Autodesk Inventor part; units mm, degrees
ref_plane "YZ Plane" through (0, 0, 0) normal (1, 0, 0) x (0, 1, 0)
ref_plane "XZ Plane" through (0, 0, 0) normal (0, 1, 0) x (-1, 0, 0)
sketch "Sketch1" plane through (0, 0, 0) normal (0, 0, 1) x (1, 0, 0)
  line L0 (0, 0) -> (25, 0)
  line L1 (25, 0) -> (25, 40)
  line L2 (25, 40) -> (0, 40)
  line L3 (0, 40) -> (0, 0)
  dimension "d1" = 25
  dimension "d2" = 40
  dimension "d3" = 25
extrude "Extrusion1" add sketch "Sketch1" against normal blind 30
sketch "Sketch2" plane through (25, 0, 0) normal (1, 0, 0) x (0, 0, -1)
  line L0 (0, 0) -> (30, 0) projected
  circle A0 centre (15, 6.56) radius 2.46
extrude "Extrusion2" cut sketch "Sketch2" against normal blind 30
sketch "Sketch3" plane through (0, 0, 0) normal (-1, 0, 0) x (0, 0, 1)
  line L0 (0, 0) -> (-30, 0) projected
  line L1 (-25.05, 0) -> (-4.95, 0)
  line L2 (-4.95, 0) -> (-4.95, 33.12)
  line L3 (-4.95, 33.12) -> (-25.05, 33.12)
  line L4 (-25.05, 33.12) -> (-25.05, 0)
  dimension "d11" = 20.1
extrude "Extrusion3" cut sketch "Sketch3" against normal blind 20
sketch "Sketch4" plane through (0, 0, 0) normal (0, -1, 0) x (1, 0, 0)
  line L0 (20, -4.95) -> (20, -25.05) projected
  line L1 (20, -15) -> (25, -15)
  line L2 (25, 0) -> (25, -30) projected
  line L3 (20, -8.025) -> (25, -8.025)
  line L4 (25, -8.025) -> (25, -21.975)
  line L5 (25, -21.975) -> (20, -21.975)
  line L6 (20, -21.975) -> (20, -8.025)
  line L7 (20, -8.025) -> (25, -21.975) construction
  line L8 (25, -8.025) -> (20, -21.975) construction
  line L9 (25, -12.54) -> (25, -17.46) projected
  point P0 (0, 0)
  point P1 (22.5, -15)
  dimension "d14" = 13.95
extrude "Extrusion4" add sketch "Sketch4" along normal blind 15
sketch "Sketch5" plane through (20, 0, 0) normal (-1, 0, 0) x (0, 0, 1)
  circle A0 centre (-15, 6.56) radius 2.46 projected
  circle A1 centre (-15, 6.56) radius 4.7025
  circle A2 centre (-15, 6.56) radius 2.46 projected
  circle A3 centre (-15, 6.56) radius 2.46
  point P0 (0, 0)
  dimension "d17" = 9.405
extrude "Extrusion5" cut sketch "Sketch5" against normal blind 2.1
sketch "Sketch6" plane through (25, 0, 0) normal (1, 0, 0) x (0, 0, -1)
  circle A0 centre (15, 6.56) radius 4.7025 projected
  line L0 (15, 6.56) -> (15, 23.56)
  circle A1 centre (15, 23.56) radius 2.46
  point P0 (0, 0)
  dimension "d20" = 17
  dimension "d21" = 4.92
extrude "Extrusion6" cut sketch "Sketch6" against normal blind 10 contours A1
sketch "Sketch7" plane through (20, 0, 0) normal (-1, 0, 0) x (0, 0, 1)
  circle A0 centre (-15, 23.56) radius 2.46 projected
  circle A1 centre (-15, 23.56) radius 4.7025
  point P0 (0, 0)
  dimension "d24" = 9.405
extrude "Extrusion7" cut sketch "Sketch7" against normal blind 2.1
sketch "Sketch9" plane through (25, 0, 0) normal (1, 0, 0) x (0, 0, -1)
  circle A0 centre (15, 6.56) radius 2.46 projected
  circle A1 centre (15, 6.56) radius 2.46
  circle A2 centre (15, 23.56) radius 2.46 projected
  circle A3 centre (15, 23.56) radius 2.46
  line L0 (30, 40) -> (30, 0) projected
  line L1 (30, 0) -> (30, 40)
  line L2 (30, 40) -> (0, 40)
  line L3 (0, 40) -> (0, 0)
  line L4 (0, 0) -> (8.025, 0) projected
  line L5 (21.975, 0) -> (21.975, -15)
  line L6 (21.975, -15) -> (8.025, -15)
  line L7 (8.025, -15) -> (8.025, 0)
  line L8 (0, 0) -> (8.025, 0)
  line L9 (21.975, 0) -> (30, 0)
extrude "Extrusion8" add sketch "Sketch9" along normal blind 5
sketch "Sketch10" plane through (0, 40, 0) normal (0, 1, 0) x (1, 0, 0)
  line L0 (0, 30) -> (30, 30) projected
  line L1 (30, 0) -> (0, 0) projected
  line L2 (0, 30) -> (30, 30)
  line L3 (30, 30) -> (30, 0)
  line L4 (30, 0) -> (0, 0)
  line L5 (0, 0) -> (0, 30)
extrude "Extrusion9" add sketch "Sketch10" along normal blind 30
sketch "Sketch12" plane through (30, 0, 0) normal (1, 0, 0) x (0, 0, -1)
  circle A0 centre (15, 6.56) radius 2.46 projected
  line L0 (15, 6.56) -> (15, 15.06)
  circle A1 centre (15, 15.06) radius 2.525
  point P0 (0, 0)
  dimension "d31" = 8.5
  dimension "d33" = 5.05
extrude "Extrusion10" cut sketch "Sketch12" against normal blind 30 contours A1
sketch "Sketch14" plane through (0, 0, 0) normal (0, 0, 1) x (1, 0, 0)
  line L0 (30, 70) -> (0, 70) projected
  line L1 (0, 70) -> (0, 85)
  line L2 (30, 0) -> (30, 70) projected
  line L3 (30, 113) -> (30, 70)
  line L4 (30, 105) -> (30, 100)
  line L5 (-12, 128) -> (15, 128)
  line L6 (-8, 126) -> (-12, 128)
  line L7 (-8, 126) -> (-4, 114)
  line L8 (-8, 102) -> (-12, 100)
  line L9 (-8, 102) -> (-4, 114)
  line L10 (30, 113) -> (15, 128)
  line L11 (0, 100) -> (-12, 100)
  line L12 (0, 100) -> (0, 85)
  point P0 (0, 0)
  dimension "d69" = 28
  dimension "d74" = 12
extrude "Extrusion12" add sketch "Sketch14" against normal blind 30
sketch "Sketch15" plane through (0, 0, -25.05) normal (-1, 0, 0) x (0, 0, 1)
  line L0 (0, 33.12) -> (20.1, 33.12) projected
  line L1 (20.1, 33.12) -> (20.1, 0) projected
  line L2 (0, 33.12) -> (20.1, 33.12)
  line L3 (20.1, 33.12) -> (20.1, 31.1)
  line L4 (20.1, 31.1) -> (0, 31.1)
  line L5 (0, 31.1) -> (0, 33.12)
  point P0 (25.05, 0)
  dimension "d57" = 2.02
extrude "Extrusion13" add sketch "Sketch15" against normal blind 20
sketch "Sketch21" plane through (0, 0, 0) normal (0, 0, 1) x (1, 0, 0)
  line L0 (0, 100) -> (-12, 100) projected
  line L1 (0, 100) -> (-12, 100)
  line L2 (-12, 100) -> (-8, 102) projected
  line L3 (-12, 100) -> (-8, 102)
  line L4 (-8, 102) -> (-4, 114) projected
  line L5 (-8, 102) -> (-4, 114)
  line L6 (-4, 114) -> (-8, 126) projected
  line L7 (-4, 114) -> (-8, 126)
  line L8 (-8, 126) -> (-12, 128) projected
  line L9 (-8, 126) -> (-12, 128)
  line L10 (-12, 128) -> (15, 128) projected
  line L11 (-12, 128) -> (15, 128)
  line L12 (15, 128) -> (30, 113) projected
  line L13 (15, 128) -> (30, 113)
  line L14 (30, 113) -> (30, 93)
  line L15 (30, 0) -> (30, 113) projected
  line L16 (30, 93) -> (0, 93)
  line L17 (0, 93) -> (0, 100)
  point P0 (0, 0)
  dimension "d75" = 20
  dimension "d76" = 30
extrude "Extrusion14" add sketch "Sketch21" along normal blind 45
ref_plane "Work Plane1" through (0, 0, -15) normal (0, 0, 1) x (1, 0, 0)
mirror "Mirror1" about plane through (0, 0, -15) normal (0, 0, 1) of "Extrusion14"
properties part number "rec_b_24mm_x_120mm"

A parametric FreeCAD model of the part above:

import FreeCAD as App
import Part
import Sketcher
from FreeCAD import Vector
Q = App.Units.Quantity


def add_polygon(sketch, points):
    """Adds a closed chain of lines whose ends are joined by coincident constraints."""
    first, n = sketch.GeometryCount, len(points)
    for a, b in zip(points, points[1:] + points[:1]):
        sketch.addGeometry(Part.LineSegment(App.Vector(*a, 0), App.Vector(*b, 0)), False)
    for i in range(n):
        sketch.addConstraint(Sketcher.Constraint("Coincident", first + i, 2, first + (i + 1) % n, 1))

doc = App.newDocument("Part")
body = doc.addObject("PartDesign::Body", "Body")

# Sketch on XY plane
sketch1 = doc.addObject("Sketcher::SketchObject", "Sketch")
body.addObject(sketch1)
sketch1.AttachmentSupport = (doc.XY_Plane, [""])
sketch1.MapMode = "FlatFace"
add_polygon(sketch1, [(0, 40), (0, 0), (25, 0), (25, 40)])  # lines 0-3
sketch1.addConstraint([
    Sketcher.Constraint("Vertical", 0),
    Sketcher.Constraint("Horizontal", 1),
    Sketcher.Constraint("Vertical", 2),
    Sketcher.Constraint("Horizontal", 3),
    Sketcher.Constraint("Coincident", 0, 2, -1, 1),
    Sketcher.Constraint("DistanceX", 1, 1, 1, 2, 25.0),
    Sketcher.Constraint("DistanceY", 0, 2, 0, 1, 40.0),
])
pad1 = doc.addObject("PartDesign::Pad", "Pad")
body.addObject(pad1)
pad1.Profile = sketch1
pad1.Length = 30
pad1.Reversed = True

# Sketch on YZ plane
sketch2 = doc.addObject("Sketcher::SketchObject", "Sketch001")
body.addObject(sketch2)
sketch2.AttachmentSupport = (doc.YZ_Plane, [""])
sketch2.MapMode = "FlatFace"
sketch2.AttachmentOffset = App.Placement(Vector(0, 0, 25), App.Rotation())
sketch2.addGeometry(Part.Circle(Vector(6.6, -15, 0), Vector(0, 0, 1), 2.5), False)
sketch2.addConstraint([
    Sketcher.Constraint("Diameter", 0, 4.92),
    Sketcher.Constraint("DistanceY", 0, 3, -1, 1, 15.0),
    Sketcher.Constraint("DistanceX", -1, 1, 0, 3, 6.56),
])
pocket1 = doc.addObject("PartDesign::Pocket", "Pocket")
body.addObject(pocket1)
pocket1.Profile = sketch2
pocket1.Length = 30

# Sketch on YZ plane
sketch3 = doc.addObject("Sketcher::SketchObject", "Sketch002")
body.addObject(sketch3)
sketch3.AttachmentSupport = (doc.YZ_Plane, [""])
sketch3.MapMode = "FlatFace"
add_polygon(sketch3, [(0, -25), (0, -5), (33, -5), (33, -25)])  # lines 0-3
sketch3.addConstraint([
    Sketcher.Constraint("Vertical", 0),
    Sketcher.Constraint("Horizontal", 1),
    Sketcher.Constraint("Vertical", 2),
    Sketcher.Constraint("Horizontal", 3),
    Sketcher.Constraint("PointOnObject", 0, 2, -2),
    Sketcher.Constraint("DistanceY", 0, 1, 0, 2, 20.1),
    Sketcher.Constraint("DistanceX", 1, 1, 1, 2, 33.12),
    Sketcher.Constraint("DistanceY", 0, 2, -1, 1, 4.95),
])
pocket2 = doc.addObject("PartDesign::Pocket", "Pocket001")
body.addObject(pocket2)
pocket2.Profile = sketch3
pocket2.Length = 20
pocket2.Reversed = True

# Sketch on XZ plane
sketch4 = doc.addObject("Sketcher::SketchObject", "Sketch003")
body.addObject(sketch4)
sketch4.AttachmentSupport = (doc.XZ_Plane, [""])
sketch4.MapMode = "FlatFace"
add_polygon(sketch4, [(25, -8), (20, -8), (20, -22), (25, -22)])  # lines 0-3
sketch4.addConstraint([
    Sketcher.Constraint("Horizontal", 0),
    Sketcher.Constraint("Vertical", 1),
    Sketcher.Constraint("Horizontal", 2),
    Sketcher.Constraint("Vertical", 3),
    Sketcher.Constraint("DistanceY", 1, 2, 1, 1, 13.95),
    Sketcher.Constraint("DistanceX", 0, 2, 0, 1, 5.0),
    Sketcher.Constraint("DistanceX", -1, 1, 0, 2, 20.0),
    Sketcher.Constraint("DistanceY", 0, 2, -1, 1, 8.025),
])
pad2 = doc.addObject("PartDesign::Pad", "Pad001")
body.addObject(pad2)
pad2.Profile = sketch4
pad2.Length = 15

# Sketch on YZ plane
sketch5 = doc.addObject("Sketcher::SketchObject", "Sketch004")
body.addObject(sketch5)
sketch5.AttachmentSupport = (doc.YZ_Plane, [""])
sketch5.MapMode = "FlatFace"
sketch5.AttachmentOffset = App.Placement(Vector(0, 0, 20), App.Rotation())
sketch5.addGeometry([
    Part.Circle(Vector(6.6, -15, 0), Vector(0, 0, 1), 4.7),
    Part.Circle(Vector(6.6, -15, 0), Vector(0, 0, 1), 2.5),
], False)
sketch5.addConstraint([
    Sketcher.Constraint("Coincident", 1, 3, 0, 3),
    Sketcher.Constraint("Diameter", 0, 9.405),
    Sketcher.Constraint("Diameter", 1, 4.92),
    Sketcher.Constraint("DistanceY", 0, 3, -1, 1, 15.0),
    Sketcher.Constraint("DistanceX", -1, 1, 0, 3, 6.56),
])
pocket3 = doc.addObject("PartDesign::Pocket", "Pocket002")
body.addObject(pocket3)
pocket3.Profile = sketch5
pocket3.Length = 2.1
pocket3.Reversed = True

# Sketch on YZ plane
sketch6 = doc.addObject("Sketcher::SketchObject", "Sketch005")
body.addObject(sketch6)
sketch6.AttachmentSupport = (doc.YZ_Plane, [""])
sketch6.MapMode = "FlatFace"
sketch6.AttachmentOffset = App.Placement(Vector(0, 0, 25), App.Rotation())
sketch6.addGeometry(Part.Circle(Vector(23.6, -15, 0), Vector(0, 0, 1), 2.5), False)
sketch6.addConstraint([
    Sketcher.Constraint("Diameter", 0, 4.92),
    Sketcher.Constraint("DistanceY", 0, 3, -1, 1, 15.0),
    Sketcher.Constraint("DistanceX", -1, 1, 0, 3, 23.56),
])
pocket4 = doc.addObject("PartDesign::Pocket", "Pocket003")
body.addObject(pocket4)
pocket4.Profile = sketch6
pocket4.Length = 10

# Sketch on YZ plane
sketch7 = doc.addObject("Sketcher::SketchObject", "Sketch006")
body.addObject(sketch7)
sketch7.AttachmentSupport = (doc.YZ_Plane, [""])
sketch7.MapMode = "FlatFace"
sketch7.AttachmentOffset = App.Placement(Vector(0, 0, 20), App.Rotation())
sketch7.addGeometry([
    Part.Circle(Vector(23.6, -15, 0), Vector(0, 0, 1), 4.7),
    Part.Circle(Vector(23.6, -15, 0), Vector(0, 0, 1), 2.5),
], False)
sketch7.addConstraint([
    Sketcher.Constraint("Coincident", 1, 3, 0, 3),
    Sketcher.Constraint("Diameter", 0, 9.405),
    Sketcher.Constraint("Diameter", 1, 4.92),
    Sketcher.Constraint("DistanceY", 0, 3, -1, 1, 15.0),
    Sketcher.Constraint("DistanceX", -1, 1, 0, 3, 23.56),
])
pocket5 = doc.addObject("PartDesign::Pocket", "Pocket004")
body.addObject(pocket5)
pocket5.Profile = sketch7
pocket5.Length = 2.1
pocket5.Reversed = True

# Sketch on YZ plane
sketch8 = doc.addObject("Sketcher::SketchObject", "Sketch007")
body.addObject(sketch8)
sketch8.AttachmentSupport = (doc.YZ_Plane, [""])
sketch8.MapMode = "FlatFace"
sketch8.AttachmentOffset = App.Placement(Vector(0, 0, 25), App.Rotation())
add_polygon(sketch8, [(0, -30), (40, -30), (40, 0), (0, 0), (0, -8), (-15, -8), (-15, -22), (0, -22)])  # lines 0-7
sketch8.addGeometry(Part.Circle(Vector(6.6, -15, 0), Vector(0, 0, 1), 2.5), False)  # 8
sketch8.addGeometry(Part.Circle(Vector(23.6, -15, 0), Vector(0, 0, 1), 2.5), False)  # 9
sketch8.addConstraint([
    Sketcher.Constraint("Horizontal", 0),
    Sketcher.Constraint("Vertical", 1),
    Sketcher.Constraint("Horizontal", 2),
    Sketcher.Constraint("Vertical", 3),
    Sketcher.Constraint("Horizontal", 4),
    Sketcher.Constraint("Vertical", 5),
    Sketcher.Constraint("Horizontal", 6),
    Sketcher.Constraint("Vertical", 7),
    Sketcher.Constraint("Coincident", 2, 2, -1, 1),
    Sketcher.Constraint("Equal", 8, 9),
    Sketcher.Constraint("PointOnObject", 6, 2, -2),
    Sketcher.Constraint("Horizontal", 8, 3, 9, 3),
    Sketcher.Constraint("Equal", 3, 7),
    Sketcher.Constraint("Diameter", 8, 4.92),
    Sketcher.Constraint("DistanceX", 0, 1, 0, 2, 40.0),
    Sketcher.Constraint("DistanceX", 4, 2, 4, 1, 15.0),
    Sketcher.Constraint("DistanceY", 1, 1, 1, 2, 30.0),
    Sketcher.Constraint("DistanceY", 8, 3, -1, 1, 15.0),
    Sketcher.Constraint("DistanceX", 8, 3, 9, 3, 17.0),
    Sketcher.Constraint("DistanceY", 5, 2, 5, 1, 13.95),
    Sketcher.Constraint("DistanceX", -1, 1, 8, 3, 6.56),
])
pad3 = doc.addObject("PartDesign::Pad", "Pad002")
body.addObject(pad3)
pad3.Profile = sketch8
pad3.Length = 5

# Sketch on XZ plane
sketch9 = doc.addObject("Sketcher::SketchObject", "Sketch008")
body.addObject(sketch9)
sketch9.AttachmentSupport = (doc.XZ_Plane, [""])
sketch9.MapMode = "FlatFace"
sketch9.AttachmentOffset = App.Placement(Vector(0, 0, -40), App.Rotation())
add_polygon(sketch9, [(30, -30), (0, -30), (0, 0), (30, 0)])  # lines 0-3
sketch9.addConstraint([
    Sketcher.Constraint("Horizontal", 0),
    Sketcher.Constraint("Vertical", 1),
    Sketcher.Constraint("Horizontal", 2),
    Sketcher.Constraint("Vertical", 3),
    Sketcher.Constraint("Coincident", 1, 2, -1, 1),
    Sketcher.Constraint("Equal", 2, 1),
    Sketcher.Constraint("DistanceX", 0, 2, 0, 1, 30.0),
])
pad4 = doc.addObject("PartDesign::Pad", "Pad003")
body.addObject(pad4)
pad4.Profile = sketch9
pad4.Length = 30
pad4.Reversed = True

# Sketch on YZ plane
sketch10 = doc.addObject("Sketcher::SketchObject", "Sketch009")
body.addObject(sketch10)
sketch10.AttachmentSupport = (doc.YZ_Plane, [""])
sketch10.MapMode = "FlatFace"
sketch10.AttachmentOffset = App.Placement(Vector(0, 0, 30), App.Rotation())
sketch10.addGeometry(Part.Circle(Vector(15.1, -15, 0), Vector(0, 0, 1), 2.5), False)
sketch10.addConstraint([
    Sketcher.Constraint("Diameter", 0, 5.05),
    Sketcher.Constraint("DistanceY", 0, 3, -1, 1, 15.0),
    Sketcher.Constraint("DistanceX", -1, 1, 0, 3, 15.06),
])
pocket6 = doc.addObject("PartDesign::Pocket", "Pocket005")
body.addObject(pocket6)
pocket6.Profile = sketch10
pocket6.Length = 30

# Sketch on XY plane
sketch11 = doc.addObject("Sketcher::SketchObject", "Sketch010")
body.addObject(sketch11)
sketch11.AttachmentSupport = (doc.XY_Plane, [""])
sketch11.MapMode = "FlatFace"
add_polygon(sketch11, [(0, 70), (30, 70), (30, 113), (15, 128), (-12, 128), (-8, 126), (-4, 114), (-8, 102), (-12, 100), (0, 100)])  # lines 0-9
sketch11.addConstraint([
    Sketcher.Constraint("Horizontal", 0),
    Sketcher.Constraint("Vertical", 1),
    Sketcher.Constraint("Horizontal", 3),
    Sketcher.Constraint("Horizontal", 8),
    Sketcher.Constraint("Vertical", 9),
    Sketcher.Constraint("PointOnObject", 8, 2, -2),
    Sketcher.Constraint("Vertical", 4, 2, 6, 2),
    Sketcher.Constraint("Vertical", 3, 2, 7, 2),
    Sketcher.Constraint("Equal", 0, 9),
    Sketcher.Constraint("Equal", 5, 6),
    Sketcher.Constraint("Equal", 4, 7),
    Sketcher.Constraint("DistanceX", 8, 1, 8, 2, 12.0),
    Sketcher.Constraint("DistanceY", 5, 2, 4, 2, 12.0),
    Sketcher.Constraint("DistanceY", 7, 2, 3, 2, 28.0),
    Sketcher.Constraint("DistanceX", 0, 1, 0, 2, 30.0),
    Sketcher.Constraint("DistanceX", 3, 2, 3, 1, 27.0),
    Sketcher.Constraint("DistanceY", 1, 1, 1, 2, 43.0),
    Sketcher.Constraint("DistanceY", -1, 1, 0, 2, 70.0),
    Sketcher.Constraint("DistanceX", 4, 2, -1, 1, 8.0),
    Sketcher.Constraint("DistanceX", 5, 2, -1, 1, 4.0),
])
pad5 = doc.addObject("PartDesign::Pad", "Pad004")
body.addObject(pad5)
pad5.Profile = sketch11
pad5.Length = 30
pad5.Reversed = True

# Sketch on YZ plane
sketch12 = doc.addObject("Sketcher::SketchObject", "Sketch011")
body.addObject(sketch12)
sketch12.AttachmentSupport = (doc.YZ_Plane, [""])
sketch12.MapMode = "FlatFace"
add_polygon(sketch12, [(33.1, -5), (33.1, -25.1), (31.1, -25.1), (31.1, -5)])  # lines 0-3
sketch12.addConstraint([
    Sketcher.Constraint("Vertical", 0),
    Sketcher.Constraint("Horizontal", 1),
    Sketcher.Constraint("Vertical", 2),
    Sketcher.Constraint("Horizontal", 3),
    Sketcher.Constraint("DistanceX", 1, 2, 1, 1, 2.02),
    Sketcher.Constraint("DistanceY", 0, 2, 0, 1, 20.1),
    Sketcher.Constraint("DistanceX", -1, 1, 1, 2, 31.1),
    Sketcher.Constraint("DistanceY", 0, 2, -1, 1, 25.05),
])
pad6 = doc.addObject("PartDesign::Pad", "Pad005")
body.addObject(pad6)
pad6.Profile = sketch12
pad6.Length = 20

# Sketch on XY plane
sketch13 = doc.addObject("Sketcher::SketchObject", "Sketch012")
body.addObject(sketch13)
sketch13.AttachmentSupport = (doc.XY_Plane, [""])
sketch13.MapMode = "FlatFace"
add_polygon(sketch13, [(-12, 100), (0, 100), (0, 93), (30, 93), (30, 113), (15, 128), (-12, 128), (-8, 126), (-4, 114), (-8, 102)])  # lines 0-9
sketch13.addConstraint([
    Sketcher.Constraint("Horizontal", 0),
    Sketcher.Constraint("Vertical", 1),
    Sketcher.Constraint("Horizontal", 2),
    Sketcher.Constraint("Vertical", 3),
    Sketcher.Constraint("Horizontal", 5),
    Sketcher.Constraint("PointOnObject", 0, 2, -2),
    Sketcher.Constraint("Vertical", 6, 2, 8, 2),
    Sketcher.Constraint("Vertical", 5, 2, 9, 2),
    Sketcher.Constraint("Equal", 7, 8),
    Sketcher.Constraint("Equal", 6, 9),
    Sketcher.Constraint("DistanceX", 2, 1, 2, 2, 30.0),
    Sketcher.Constraint("DistanceY", 3, 1, 3, 2, 20.0),
    Sketcher.Constraint("DistanceX", 0, 1, 0, 2, 12.0),
    Sketcher.Constraint("DistanceX", 5, 2, 5, 1, 27.0),
    Sketcher.Constraint("DistanceY", 1, 2, 1, 1, 7.0),
    Sketcher.Constraint("Angle", 4, Q("135 deg")),
    Sketcher.Constraint("DistanceY", -1, 1, 0, 2, 100.0),
    Sketcher.Constraint("DistanceX", 6, 2, -1, 1, 8.0),
    Sketcher.Constraint("DistanceY", -1, 1, 6, 2, 126.0),
    Sketcher.Constraint("DistanceX", 7, 2, -1, 1, 4.0),
])
pad7 = doc.addObject("PartDesign::Pad", "Pad006")
body.addObject(pad7)
pad7.Profile = sketch13
pad7.Length = 45
doc.recompute()

datumplane = doc.addObject("PartDesign::Plane", "DatumPlane")
body.addObject(datumplane)
datumplane.AttachmentSupport = (doc.XY_Plane, [""])
datumplane.MapMode = "FlatFace"
datumplane.AttachmentOffset = App.Placement(Vector(0, 0, -15), App.Rotation())
mirrored = doc.addObject("PartDesign::Mirrored", "Mirrored")
body.addObject(mirrored)
mirrored.Originals = [pad7]
mirrored.MirrorPlane = (datumplane, [""])
body.Tip = mirrored

doc.recompute()
